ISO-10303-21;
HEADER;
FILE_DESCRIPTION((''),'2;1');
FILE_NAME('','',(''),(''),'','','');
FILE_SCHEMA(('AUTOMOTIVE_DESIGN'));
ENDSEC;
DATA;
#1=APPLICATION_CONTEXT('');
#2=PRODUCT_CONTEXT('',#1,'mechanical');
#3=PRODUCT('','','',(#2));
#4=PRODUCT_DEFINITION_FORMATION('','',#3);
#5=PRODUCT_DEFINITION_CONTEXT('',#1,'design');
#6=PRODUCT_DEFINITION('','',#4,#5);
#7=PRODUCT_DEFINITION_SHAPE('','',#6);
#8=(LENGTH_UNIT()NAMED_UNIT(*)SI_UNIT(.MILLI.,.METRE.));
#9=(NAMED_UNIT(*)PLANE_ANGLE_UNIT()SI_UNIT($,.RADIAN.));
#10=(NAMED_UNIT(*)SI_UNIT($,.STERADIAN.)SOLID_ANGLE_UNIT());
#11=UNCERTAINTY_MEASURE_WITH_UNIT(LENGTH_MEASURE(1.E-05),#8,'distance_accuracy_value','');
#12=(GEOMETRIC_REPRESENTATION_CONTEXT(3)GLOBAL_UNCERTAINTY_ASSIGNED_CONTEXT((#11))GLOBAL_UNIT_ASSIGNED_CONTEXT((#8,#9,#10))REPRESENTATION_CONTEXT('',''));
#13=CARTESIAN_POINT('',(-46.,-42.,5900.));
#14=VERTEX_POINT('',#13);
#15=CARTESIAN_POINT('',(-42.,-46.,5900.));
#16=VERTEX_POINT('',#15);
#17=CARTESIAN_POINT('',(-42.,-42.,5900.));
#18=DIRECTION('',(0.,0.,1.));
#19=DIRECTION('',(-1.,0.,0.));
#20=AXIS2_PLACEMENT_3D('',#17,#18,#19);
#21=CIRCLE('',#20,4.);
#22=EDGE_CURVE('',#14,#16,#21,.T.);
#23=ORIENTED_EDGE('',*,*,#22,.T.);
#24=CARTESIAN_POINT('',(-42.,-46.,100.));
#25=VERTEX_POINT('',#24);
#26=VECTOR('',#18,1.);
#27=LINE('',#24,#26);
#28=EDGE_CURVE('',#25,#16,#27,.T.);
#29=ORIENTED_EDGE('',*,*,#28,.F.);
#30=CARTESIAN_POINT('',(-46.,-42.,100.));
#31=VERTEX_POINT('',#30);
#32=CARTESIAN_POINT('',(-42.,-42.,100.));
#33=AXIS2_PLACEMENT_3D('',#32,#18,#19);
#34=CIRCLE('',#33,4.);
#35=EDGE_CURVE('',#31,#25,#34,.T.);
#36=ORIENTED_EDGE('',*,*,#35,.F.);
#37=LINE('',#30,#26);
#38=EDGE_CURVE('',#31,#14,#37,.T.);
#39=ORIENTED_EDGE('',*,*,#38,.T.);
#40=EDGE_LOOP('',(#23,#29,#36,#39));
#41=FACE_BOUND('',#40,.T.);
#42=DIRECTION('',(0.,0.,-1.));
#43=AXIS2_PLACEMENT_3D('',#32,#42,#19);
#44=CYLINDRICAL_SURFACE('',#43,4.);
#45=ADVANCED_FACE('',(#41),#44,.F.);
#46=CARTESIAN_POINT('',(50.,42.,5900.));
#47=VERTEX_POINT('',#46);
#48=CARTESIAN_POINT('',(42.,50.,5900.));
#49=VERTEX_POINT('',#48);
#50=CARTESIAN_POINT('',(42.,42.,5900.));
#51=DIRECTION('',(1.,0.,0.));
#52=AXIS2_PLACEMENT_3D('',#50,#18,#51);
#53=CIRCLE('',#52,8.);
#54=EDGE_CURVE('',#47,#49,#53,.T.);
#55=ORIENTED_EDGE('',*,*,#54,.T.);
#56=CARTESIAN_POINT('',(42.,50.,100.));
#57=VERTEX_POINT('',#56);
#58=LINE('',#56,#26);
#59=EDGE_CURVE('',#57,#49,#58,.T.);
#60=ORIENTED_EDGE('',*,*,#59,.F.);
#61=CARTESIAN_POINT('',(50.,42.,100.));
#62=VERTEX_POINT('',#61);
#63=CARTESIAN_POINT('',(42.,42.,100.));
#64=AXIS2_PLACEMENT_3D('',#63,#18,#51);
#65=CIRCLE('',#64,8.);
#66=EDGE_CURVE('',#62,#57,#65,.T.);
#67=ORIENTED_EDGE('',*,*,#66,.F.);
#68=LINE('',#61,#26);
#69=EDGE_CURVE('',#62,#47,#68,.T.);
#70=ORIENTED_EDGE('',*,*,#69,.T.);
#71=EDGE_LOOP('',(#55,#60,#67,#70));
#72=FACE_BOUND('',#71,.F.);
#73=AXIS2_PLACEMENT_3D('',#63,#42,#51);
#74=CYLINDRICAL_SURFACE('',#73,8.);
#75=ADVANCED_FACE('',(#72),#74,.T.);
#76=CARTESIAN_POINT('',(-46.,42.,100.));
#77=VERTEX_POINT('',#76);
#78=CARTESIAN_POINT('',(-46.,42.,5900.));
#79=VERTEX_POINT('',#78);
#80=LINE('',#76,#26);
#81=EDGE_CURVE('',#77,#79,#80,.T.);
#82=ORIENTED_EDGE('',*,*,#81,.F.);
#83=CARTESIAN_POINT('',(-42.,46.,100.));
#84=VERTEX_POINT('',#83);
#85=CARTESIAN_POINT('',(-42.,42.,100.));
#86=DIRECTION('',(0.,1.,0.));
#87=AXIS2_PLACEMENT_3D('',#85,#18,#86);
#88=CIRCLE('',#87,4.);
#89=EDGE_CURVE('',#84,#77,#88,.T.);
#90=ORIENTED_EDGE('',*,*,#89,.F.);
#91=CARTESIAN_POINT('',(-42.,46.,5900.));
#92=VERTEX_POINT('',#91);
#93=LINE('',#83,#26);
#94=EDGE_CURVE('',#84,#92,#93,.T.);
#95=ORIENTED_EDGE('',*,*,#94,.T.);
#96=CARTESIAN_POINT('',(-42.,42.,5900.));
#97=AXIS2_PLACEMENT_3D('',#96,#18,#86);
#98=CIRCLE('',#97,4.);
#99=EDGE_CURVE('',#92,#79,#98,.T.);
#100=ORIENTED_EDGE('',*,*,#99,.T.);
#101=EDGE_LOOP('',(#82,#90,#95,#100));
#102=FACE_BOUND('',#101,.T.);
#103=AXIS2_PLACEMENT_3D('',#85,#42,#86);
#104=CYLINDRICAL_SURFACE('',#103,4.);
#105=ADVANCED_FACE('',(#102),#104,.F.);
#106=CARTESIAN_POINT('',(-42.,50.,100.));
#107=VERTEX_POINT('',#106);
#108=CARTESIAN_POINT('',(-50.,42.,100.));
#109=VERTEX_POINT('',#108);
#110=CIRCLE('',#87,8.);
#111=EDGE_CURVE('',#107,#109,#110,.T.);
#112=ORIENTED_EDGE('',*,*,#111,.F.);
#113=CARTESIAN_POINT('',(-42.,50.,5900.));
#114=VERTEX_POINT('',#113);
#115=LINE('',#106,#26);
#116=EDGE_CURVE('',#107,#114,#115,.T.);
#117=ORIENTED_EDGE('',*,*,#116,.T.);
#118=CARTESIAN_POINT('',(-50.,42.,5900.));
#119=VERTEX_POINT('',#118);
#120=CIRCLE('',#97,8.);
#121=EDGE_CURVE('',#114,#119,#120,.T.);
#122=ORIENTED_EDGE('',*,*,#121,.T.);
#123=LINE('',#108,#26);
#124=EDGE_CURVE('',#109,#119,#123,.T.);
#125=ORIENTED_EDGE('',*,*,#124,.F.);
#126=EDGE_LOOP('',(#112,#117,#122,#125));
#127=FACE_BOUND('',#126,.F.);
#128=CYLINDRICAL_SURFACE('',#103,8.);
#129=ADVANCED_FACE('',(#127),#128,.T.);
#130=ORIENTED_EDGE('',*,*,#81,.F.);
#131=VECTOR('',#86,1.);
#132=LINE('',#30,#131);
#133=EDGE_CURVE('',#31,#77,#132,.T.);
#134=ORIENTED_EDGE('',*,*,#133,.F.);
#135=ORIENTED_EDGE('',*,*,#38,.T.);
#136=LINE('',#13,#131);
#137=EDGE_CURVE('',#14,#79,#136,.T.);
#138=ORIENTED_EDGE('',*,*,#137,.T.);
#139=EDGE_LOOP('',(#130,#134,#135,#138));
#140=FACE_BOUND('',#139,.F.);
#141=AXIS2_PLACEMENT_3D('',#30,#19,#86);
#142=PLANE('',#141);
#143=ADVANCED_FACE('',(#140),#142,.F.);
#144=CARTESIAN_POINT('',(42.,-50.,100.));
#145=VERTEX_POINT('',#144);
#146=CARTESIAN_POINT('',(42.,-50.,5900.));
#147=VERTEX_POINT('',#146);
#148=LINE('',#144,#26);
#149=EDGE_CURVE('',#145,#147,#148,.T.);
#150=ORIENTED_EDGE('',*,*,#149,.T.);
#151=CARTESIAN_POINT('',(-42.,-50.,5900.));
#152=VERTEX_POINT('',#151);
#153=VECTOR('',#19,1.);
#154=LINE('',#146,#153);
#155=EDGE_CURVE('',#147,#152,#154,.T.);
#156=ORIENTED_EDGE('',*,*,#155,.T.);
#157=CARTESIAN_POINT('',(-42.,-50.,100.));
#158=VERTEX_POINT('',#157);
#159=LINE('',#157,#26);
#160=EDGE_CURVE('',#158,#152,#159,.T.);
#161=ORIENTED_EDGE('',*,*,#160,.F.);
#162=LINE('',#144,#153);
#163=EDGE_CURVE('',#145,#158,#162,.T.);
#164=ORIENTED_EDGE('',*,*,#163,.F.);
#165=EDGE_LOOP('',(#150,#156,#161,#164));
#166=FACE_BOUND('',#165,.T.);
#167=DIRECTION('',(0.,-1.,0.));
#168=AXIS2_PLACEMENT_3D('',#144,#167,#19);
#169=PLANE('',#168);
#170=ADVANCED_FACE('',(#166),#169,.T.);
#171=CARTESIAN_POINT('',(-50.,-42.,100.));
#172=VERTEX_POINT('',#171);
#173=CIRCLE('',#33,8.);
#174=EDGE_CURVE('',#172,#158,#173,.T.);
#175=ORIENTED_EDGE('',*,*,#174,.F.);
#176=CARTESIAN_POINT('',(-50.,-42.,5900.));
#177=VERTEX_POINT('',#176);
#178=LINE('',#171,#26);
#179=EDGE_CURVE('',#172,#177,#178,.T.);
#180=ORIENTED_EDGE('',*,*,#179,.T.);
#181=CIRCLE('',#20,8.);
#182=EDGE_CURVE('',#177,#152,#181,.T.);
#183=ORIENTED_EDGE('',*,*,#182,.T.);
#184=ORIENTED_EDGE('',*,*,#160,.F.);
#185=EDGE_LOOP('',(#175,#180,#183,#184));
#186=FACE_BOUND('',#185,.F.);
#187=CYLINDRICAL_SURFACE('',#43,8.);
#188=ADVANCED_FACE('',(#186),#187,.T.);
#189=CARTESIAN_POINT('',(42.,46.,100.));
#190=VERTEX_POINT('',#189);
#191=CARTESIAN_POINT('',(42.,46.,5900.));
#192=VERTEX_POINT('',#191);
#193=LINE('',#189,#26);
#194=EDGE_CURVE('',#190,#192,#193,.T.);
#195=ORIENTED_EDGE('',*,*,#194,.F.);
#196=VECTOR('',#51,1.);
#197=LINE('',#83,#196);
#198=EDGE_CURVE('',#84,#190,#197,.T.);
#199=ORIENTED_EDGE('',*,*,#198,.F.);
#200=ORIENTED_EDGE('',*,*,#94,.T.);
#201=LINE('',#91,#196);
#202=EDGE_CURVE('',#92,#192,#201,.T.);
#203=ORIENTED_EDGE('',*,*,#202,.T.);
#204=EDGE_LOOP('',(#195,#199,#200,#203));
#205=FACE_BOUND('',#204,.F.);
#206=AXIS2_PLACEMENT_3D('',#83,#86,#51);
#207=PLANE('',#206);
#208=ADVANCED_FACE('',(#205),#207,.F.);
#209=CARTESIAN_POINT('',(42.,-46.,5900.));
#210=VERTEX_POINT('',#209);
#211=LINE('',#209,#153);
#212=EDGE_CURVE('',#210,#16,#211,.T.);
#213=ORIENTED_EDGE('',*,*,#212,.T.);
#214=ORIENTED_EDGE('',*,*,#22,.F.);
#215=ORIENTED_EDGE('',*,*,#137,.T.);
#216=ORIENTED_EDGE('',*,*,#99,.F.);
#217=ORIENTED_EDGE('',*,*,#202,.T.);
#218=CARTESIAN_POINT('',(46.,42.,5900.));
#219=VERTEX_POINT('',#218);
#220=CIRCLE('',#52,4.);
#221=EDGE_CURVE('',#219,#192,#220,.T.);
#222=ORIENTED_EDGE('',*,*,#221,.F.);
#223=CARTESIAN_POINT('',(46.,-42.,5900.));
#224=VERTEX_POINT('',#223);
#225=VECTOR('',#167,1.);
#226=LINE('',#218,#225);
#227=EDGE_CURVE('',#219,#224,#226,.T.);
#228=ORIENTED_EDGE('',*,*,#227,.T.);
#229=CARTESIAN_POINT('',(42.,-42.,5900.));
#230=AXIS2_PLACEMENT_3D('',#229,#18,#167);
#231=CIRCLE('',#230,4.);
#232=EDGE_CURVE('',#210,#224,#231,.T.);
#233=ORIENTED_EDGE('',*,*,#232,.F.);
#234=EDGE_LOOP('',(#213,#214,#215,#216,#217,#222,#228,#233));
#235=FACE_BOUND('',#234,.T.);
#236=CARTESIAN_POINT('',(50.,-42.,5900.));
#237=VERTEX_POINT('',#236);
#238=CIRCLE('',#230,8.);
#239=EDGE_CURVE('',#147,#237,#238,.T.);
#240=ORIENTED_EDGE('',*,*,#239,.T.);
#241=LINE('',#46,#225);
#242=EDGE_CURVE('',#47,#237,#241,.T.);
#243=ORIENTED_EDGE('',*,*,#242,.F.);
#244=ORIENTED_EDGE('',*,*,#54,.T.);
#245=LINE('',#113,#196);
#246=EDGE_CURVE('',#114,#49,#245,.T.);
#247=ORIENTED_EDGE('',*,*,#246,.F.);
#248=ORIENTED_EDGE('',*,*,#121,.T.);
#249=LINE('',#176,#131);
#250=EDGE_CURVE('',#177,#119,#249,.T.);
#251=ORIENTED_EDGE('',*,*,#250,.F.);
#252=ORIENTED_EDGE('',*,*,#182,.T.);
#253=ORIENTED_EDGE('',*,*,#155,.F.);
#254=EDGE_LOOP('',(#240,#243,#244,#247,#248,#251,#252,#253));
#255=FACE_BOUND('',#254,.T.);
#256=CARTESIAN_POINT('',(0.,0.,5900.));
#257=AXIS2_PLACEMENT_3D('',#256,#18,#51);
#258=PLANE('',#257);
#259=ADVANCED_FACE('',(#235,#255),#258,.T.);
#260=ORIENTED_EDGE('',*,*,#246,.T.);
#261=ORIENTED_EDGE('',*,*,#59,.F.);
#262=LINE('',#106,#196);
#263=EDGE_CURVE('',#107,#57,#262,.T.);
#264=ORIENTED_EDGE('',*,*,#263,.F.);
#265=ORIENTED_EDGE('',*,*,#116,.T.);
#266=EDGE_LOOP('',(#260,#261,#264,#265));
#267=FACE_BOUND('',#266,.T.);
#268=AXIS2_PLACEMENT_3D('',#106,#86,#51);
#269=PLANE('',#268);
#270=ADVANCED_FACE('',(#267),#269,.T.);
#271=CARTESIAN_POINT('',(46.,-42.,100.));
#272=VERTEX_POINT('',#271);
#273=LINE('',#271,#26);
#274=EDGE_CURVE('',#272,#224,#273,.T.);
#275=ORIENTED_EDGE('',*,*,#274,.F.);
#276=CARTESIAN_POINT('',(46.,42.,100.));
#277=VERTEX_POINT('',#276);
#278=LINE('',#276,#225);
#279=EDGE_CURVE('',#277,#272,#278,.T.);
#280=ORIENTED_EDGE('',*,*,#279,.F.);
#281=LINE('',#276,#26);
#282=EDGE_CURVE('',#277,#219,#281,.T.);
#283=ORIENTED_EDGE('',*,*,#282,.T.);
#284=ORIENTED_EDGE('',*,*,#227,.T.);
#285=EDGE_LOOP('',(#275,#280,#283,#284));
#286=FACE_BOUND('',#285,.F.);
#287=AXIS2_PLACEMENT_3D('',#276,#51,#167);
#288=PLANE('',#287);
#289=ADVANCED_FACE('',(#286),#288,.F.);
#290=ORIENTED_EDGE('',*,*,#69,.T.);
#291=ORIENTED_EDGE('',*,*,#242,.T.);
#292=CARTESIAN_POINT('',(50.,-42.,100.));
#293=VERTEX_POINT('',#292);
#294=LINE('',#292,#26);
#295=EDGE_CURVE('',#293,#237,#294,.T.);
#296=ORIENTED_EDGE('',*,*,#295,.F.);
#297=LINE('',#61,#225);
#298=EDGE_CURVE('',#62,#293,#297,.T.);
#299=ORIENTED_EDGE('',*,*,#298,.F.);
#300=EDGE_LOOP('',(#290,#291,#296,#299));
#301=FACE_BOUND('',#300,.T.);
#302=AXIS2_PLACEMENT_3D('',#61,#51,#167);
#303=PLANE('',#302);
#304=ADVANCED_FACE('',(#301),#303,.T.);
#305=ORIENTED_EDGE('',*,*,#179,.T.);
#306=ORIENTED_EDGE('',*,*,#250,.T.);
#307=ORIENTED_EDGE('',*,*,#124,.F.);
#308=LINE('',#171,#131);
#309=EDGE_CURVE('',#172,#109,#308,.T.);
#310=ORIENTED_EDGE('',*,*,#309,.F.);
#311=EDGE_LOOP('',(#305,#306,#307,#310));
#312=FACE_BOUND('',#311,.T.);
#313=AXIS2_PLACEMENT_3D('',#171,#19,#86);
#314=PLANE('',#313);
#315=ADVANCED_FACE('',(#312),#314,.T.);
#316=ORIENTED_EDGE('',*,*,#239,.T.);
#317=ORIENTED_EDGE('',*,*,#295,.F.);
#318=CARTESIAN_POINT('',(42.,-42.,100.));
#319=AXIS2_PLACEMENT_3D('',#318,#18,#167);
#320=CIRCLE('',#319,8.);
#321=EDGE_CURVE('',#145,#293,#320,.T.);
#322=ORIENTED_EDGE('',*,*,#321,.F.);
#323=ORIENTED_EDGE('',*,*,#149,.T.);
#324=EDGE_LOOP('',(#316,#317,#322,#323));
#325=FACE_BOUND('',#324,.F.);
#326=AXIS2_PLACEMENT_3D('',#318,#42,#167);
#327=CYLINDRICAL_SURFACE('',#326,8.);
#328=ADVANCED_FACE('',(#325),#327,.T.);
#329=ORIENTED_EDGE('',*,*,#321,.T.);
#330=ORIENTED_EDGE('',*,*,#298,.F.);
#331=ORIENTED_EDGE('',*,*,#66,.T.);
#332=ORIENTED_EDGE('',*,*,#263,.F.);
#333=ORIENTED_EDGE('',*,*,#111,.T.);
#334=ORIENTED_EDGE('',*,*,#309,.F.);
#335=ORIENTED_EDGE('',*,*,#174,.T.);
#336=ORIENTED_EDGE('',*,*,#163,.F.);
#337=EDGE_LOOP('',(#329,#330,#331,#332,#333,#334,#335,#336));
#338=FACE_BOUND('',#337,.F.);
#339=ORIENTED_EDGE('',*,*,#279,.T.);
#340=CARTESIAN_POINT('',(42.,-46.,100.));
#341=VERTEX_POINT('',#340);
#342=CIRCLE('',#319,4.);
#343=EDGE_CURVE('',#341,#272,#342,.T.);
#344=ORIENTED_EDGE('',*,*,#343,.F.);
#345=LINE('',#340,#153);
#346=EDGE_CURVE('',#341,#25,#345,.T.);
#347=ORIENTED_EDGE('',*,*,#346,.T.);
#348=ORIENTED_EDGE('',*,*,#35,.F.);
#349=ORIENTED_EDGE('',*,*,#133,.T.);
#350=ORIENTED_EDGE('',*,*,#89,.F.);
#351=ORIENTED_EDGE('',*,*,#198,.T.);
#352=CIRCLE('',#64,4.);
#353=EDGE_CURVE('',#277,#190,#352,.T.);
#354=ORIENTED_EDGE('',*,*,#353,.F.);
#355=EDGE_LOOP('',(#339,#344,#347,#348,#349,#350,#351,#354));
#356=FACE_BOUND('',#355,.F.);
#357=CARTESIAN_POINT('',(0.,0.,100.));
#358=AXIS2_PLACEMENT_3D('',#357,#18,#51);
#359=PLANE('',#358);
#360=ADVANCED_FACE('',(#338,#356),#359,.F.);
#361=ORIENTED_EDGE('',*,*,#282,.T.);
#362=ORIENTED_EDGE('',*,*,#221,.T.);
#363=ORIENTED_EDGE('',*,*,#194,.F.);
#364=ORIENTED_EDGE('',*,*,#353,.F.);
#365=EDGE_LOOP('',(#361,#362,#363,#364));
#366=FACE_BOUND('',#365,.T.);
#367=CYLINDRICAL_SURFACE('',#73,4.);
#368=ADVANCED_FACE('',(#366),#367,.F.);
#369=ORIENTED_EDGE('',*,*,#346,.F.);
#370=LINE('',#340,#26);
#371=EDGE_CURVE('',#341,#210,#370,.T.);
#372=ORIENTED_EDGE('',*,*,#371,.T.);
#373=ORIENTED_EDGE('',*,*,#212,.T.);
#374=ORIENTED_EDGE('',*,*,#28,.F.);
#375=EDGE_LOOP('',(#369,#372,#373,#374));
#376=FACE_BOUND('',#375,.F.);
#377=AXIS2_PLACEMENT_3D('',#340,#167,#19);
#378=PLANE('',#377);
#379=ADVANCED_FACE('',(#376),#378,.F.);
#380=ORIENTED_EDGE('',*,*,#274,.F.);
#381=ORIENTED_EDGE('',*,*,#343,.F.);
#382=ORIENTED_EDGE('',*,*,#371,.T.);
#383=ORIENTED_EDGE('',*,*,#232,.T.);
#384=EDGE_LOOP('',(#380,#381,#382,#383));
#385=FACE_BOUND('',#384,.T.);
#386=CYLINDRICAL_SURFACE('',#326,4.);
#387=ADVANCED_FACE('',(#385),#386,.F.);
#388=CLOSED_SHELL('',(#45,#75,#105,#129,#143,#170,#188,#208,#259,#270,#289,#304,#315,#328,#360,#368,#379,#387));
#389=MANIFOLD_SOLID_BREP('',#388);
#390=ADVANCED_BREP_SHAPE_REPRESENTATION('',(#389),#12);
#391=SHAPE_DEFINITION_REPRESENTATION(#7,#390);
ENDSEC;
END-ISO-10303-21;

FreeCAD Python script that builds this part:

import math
import FreeCAD as App
import Part
import Sketcher
Q = App.Units.Quantity

doc = App.newDocument("Part")
body = doc.addObject("PartDesign::Body", "Body")

# Sketch on XY plane
sketch1 = doc.addObject("Sketcher::SketchObject", "Sketch")
body.addObject(sketch1)
sketch1.AttachmentSupport = (doc.XY_Plane, [""])
sketch1.MapMode = "FlatFace"
sketch1.AttachmentOffset = App.Placement(App.Vector(0, 0, 100), App.Rotation())
sketch1.addGeometry([
    Part.LineSegment(App.Vector(-50, 42, 0), App.Vector(-50, -42, 0)),  # 0
    Part.ArcOfCircle(Part.Circle(App.Vector(-42, -42, 0), App.Vector(0, 0, 1), 8), math.radians(180), math.radians(270)),  # 1
    Part.LineSegment(App.Vector(-42, -50, 0), App.Vector(42, -50, 0)),  # 2
    Part.ArcOfCircle(Part.Circle(App.Vector(42, -42, 0), App.Vector(0, 0, 1), 8), math.radians(-90), math.radians(0)),  # 3
    Part.LineSegment(App.Vector(50, -42, 0), App.Vector(50, 42, 0)),  # 4
    Part.ArcOfCircle(Part.Circle(App.Vector(42, 42, 0), App.Vector(0, 0, 1), 8), math.radians(0), math.radians(90)),  # 5
    Part.LineSegment(App.Vector(42, 50, 0), App.Vector(-42, 50, 0)),  # 6
    Part.ArcOfCircle(Part.Circle(App.Vector(-42, 42, 0), App.Vector(0, 0, 1), 8), math.radians(90), math.radians(180)),  # 7
    Part.ArcOfCircle(Part.Circle(App.Vector(-42, 42, 0), App.Vector(0, 0, 1), 4), math.radians(90), math.radians(180)),  # 8
    Part.LineSegment(App.Vector(-42, 46, 0), App.Vector(42, 46, 0)),  # 9
    Part.ArcOfCircle(Part.Circle(App.Vector(42, 42, 0), App.Vector(0, 0, 1), 4), math.radians(0), math.radians(90)),  # 10
    Part.LineSegment(App.Vector(46, 42, 0), App.Vector(46, -42, 0)),  # 11
    Part.ArcOfCircle(Part.Circle(App.Vector(42, -42, 0), App.Vector(0, 0, 1), 4), math.radians(-90), math.radians(0)),  # 12
    Part.LineSegment(App.Vector(42, -46, 0), App.Vector(-42, -46, 0)),  # 13
    Part.ArcOfCircle(Part.Circle(App.Vector(-42, -42, 0), App.Vector(0, 0, 1), 4), math.radians(180), math.radians(270)),  # 14
    Part.LineSegment(App.Vector(-46, -42, 0), App.Vector(-46, 42, 0)),  # 15
], False)
sketch1.addConstraint([
    Sketcher.Constraint("Tangent", 0, 2, 1, 1),
    Sketcher.Constraint("Tangent", 1, 2, 2, 1),
    Sketcher.Constraint("Tangent", 2, 2, 3, 1),
    Sketcher.Constraint("Tangent", 3, 2, 4, 1),
    Sketcher.Constraint("Tangent", 4, 2, 5, 1),
    Sketcher.Constraint("Tangent", 5, 2, 6, 1),
    Sketcher.Constraint("Tangent", 6, 2, 7, 1),
    Sketcher.Constraint("Tangent", 7, 2, 0, 1),
    Sketcher.Constraint("Tangent", 8, 1, 9, 1),
    Sketcher.Constraint("Tangent", 9, 2, 10, 2),
    Sketcher.Constraint("Tangent", 10, 1, 11, 1),
    Sketcher.Constraint("Tangent", 11, 2, 12, 2),
    Sketcher.Constraint("Tangent", 12, 1, 13, 1),
    Sketcher.Constraint("Tangent", 13, 2, 14, 2),
    Sketcher.Constraint("Tangent", 14, 1, 15, 1),
    Sketcher.Constraint("Tangent", 15, 2, 8, 2),
    Sketcher.Constraint("Vertical", 0),
    Sketcher.Constraint("Horizontal", 2),
    Sketcher.Constraint("Vertical", 4),
    Sketcher.Constraint("Horizontal", 6),
    Sketcher.Constraint("Horizontal", 9),
    Sketcher.Constraint("Vertical", 11),
    Sketcher.Constraint("Horizontal", 13),
    Sketcher.Constraint("Vertical", 15),
    Sketcher.Constraint("Coincident", 8, 3, 7, 3),
    Sketcher.Constraint("Coincident", 10, 3, 5, 3),
    Sketcher.Constraint("Coincident", 12, 3, 3, 3),
    Sketcher.Constraint("Equal", 1, 3),
    Sketcher.Constraint("Equal", 3, 5),
    Sketcher.Constraint("Equal", 5, 7),
    Sketcher.Constraint("Equal", 12, 14),
    Sketcher.Constraint("Symmetric", 1, 3, 5, 3, -1, 1),
    Sketcher.Constraint("Equal", 13, 0),
    Sketcher.Constraint("Radius", 1, Q("8 mm")),
    Sketcher.Constraint("Radius", 8, Q("4 mm")),
    Sketcher.Constraint("DistanceX", 0, 2, -1, 1, Q("50 mm")),
])
pad1 = doc.addObject("PartDesign::Pad", "Pad")
body.addObject(pad1)
pad1.Profile = sketch1
pad1.Length = 5800

doc.recompute()
